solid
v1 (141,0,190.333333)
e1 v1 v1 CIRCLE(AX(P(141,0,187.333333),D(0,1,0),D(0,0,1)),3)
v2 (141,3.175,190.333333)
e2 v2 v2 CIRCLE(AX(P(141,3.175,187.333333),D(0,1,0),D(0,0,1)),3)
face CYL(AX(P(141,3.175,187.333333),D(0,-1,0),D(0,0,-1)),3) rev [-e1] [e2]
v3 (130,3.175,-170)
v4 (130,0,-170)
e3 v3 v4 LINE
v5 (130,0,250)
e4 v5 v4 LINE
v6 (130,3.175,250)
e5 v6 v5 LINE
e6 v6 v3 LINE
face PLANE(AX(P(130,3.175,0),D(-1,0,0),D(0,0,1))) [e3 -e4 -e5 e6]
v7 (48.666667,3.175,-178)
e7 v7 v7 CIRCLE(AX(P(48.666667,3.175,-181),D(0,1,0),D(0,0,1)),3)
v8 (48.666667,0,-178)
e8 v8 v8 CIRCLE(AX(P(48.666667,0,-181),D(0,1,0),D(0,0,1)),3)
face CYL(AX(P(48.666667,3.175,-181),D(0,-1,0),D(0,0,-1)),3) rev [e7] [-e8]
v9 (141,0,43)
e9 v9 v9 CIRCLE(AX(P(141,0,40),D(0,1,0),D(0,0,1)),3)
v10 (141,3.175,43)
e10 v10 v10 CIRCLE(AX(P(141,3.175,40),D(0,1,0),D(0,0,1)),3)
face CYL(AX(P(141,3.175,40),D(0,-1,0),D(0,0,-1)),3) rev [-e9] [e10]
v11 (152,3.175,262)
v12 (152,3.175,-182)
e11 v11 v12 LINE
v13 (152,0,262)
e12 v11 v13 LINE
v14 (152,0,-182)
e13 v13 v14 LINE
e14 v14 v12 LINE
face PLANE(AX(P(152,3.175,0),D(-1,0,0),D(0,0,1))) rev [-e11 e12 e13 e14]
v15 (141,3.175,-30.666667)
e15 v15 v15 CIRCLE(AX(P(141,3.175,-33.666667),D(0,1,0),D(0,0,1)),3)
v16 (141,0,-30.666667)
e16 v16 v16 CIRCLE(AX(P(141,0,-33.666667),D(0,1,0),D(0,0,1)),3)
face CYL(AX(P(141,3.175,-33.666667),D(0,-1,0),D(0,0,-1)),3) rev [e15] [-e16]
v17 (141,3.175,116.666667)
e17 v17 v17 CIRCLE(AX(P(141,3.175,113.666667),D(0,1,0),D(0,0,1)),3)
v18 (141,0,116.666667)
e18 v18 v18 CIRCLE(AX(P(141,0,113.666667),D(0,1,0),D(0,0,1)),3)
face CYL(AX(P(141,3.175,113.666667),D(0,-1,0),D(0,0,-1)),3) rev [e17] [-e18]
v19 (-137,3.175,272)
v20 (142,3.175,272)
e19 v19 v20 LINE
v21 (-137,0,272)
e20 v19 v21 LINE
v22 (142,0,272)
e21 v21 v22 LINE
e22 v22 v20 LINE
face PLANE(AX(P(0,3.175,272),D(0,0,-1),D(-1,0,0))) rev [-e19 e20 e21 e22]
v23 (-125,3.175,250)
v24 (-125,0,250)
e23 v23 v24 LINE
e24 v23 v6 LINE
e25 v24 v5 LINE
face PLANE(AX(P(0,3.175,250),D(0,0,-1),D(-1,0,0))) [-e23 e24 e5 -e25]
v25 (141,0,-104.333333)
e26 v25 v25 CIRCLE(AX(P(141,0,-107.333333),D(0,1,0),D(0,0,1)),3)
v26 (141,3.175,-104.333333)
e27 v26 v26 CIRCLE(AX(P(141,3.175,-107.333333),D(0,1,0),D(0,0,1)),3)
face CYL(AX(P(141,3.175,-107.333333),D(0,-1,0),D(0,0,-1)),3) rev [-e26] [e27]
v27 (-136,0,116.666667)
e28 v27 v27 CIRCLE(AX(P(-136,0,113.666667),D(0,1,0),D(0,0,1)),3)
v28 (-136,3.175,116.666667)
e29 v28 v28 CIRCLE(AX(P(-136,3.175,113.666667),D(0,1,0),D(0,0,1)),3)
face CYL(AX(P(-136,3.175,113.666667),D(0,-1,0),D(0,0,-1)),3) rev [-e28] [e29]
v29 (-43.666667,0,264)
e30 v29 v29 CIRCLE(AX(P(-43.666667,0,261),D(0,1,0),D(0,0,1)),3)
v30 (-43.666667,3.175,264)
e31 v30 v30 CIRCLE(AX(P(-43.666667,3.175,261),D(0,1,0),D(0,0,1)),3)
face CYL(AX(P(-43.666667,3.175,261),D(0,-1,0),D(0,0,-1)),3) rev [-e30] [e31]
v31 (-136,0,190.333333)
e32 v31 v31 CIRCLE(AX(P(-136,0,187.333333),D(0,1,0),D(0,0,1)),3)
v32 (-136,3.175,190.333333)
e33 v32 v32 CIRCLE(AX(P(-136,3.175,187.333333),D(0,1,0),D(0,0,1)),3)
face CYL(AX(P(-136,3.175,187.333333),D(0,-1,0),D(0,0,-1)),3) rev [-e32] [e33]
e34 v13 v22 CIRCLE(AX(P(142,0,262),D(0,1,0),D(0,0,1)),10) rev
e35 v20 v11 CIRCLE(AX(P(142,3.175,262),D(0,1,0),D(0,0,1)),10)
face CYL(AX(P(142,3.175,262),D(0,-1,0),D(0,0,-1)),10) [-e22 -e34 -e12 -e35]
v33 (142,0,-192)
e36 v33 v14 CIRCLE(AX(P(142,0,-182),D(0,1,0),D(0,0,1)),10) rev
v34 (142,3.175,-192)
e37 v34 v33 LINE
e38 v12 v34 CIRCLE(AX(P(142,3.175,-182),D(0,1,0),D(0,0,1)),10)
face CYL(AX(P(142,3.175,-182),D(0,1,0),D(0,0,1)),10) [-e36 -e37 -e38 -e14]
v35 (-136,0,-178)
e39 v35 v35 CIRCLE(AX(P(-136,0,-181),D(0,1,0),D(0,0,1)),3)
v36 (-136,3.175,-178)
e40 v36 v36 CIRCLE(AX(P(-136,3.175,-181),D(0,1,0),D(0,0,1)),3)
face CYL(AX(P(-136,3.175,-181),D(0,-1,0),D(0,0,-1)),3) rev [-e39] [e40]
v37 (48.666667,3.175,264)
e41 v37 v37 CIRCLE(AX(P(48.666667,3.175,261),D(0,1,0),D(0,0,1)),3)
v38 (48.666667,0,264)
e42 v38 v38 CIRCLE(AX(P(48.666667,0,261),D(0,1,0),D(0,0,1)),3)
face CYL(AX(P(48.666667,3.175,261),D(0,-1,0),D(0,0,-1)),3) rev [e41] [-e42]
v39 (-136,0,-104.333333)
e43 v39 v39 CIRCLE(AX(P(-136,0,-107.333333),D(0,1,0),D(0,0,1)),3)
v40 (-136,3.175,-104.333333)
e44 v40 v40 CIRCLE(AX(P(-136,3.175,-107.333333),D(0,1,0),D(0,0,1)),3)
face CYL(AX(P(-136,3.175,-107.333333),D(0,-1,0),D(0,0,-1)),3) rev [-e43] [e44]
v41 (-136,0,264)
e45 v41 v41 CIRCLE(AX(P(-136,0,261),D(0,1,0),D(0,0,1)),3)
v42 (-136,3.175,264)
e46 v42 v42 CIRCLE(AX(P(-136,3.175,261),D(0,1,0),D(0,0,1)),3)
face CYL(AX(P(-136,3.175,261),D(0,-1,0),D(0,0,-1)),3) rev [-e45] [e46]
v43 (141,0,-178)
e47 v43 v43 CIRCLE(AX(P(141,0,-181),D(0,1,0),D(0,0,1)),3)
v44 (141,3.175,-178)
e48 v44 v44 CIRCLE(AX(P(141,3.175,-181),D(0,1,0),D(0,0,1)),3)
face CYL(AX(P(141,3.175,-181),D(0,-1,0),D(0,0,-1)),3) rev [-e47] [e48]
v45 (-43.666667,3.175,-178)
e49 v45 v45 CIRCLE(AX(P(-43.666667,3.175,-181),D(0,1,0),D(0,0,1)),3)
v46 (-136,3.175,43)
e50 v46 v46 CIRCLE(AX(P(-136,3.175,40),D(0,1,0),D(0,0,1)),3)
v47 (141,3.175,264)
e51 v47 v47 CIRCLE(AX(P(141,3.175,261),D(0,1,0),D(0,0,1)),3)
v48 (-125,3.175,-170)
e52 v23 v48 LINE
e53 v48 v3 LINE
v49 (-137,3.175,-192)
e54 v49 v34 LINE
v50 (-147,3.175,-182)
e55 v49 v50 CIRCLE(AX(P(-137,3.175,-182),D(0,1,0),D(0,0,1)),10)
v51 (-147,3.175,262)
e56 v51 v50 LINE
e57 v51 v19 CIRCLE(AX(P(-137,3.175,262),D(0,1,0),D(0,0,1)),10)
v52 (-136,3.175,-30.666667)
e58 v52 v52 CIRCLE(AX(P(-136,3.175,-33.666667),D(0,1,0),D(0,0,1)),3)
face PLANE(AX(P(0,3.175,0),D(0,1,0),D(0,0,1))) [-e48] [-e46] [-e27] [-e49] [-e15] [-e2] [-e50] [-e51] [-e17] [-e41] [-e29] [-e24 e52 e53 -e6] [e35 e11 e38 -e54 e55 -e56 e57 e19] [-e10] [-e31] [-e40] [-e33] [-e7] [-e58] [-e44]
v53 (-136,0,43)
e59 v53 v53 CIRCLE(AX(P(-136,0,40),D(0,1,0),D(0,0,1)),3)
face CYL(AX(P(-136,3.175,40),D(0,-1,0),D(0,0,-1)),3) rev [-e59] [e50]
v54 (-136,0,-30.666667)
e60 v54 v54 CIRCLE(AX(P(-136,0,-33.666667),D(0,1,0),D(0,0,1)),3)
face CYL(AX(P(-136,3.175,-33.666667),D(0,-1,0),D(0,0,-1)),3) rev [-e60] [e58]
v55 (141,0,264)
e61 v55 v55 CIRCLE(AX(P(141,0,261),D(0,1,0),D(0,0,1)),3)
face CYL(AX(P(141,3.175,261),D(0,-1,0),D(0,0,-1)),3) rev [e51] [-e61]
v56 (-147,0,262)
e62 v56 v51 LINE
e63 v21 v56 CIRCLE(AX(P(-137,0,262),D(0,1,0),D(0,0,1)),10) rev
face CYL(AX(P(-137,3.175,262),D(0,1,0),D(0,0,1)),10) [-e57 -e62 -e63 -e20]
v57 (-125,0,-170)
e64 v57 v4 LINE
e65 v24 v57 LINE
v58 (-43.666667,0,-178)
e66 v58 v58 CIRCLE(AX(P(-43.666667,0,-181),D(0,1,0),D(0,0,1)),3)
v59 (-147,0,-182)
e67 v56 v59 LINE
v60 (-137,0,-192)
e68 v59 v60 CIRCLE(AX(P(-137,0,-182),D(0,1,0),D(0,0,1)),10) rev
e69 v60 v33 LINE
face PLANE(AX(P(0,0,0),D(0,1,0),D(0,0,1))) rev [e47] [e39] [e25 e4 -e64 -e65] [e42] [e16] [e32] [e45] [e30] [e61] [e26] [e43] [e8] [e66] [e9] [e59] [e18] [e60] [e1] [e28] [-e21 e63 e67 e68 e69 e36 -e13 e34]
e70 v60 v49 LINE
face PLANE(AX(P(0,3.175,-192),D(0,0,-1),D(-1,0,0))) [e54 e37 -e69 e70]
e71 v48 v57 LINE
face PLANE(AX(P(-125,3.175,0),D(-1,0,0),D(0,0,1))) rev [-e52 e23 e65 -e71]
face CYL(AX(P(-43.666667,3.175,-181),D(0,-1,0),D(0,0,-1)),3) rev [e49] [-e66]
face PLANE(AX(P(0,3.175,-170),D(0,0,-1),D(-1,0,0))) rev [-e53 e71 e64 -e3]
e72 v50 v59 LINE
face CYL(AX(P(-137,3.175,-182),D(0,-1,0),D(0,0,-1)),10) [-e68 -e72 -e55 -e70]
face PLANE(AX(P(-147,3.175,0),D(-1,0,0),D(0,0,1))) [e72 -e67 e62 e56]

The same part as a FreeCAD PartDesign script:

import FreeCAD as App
import Part
import Sketcher

V = App.Vector


def edges_at(feature, points):
    """Names of the edges that pass closest to the given points."""
    edges = feature.Shape.Edges
    near = lambda p: min(range(len(edges)), key=lambda i: edges[i].distToShape(Part.Vertex(*p))[0])
    return sorted({f"Edge{near(p) + 1}" for p in points})

doc = App.newDocument("Part")
body = doc.addObject("PartDesign::Body", "Body")

# Sketch on XZ plane
sketch1 = body.newObject("Sketcher::SketchObject", "Sketch")
sketch1.AttachmentSupport = (doc.getObject("XZ_Plane"), [""])
sketch1.MapMode = "FlatFace"
sketch1.addGeometry(Part.LineSegment(V(-147, -192, 0), V(-147, 272, 0)), False)
sketch1.addGeometry(Part.LineSegment(V(-147, 272, 0), V(152, 272, 0)), False)
sketch1.addGeometry(Part.LineSegment(V(152, 272, 0), V(152, -192, 0)), False)
sketch1.addGeometry(Part.LineSegment(V(152, -192, 0), V(-147, -192, 0)), False)
sketch1.addGeometry(Part.Circle(V(-136, 261, 0), V(0, 0, 1), 3), False)
sketch1.addGeometry(Part.Circle(V(-136, 187.333333, 0), V(0, 0, 1), 3), False)
sketch1.addGeometry(Part.Circle(V(-43.666667, 261, 0), V(0, 0, 1), 3), False)
sketch1.addGeometry(Part.Circle(V(-136, 113.666667, 0), V(0, 0, 1), 3), False)
sketch1.addGeometry(Part.Circle(V(48.666667, 261, 0), V(0, 0, 1), 3), False)
sketch1.addGeometry(Part.Circle(V(141, 261, 0), V(0, 0, 1), 3), False)
sketch1.addGeometry(Part.Circle(V(141, 187.333333, 0), V(0, 0, 1), 3), False)
sketch1.addGeometry(Part.Circle(V(141, 113.666667, 0), V(0, 0, 1), 3), False)
sketch1.addGeometry(Part.Circle(V(-136, 40, 0), V(0, 0, 1), 3), False)
sketch1.addGeometry(Part.Circle(V(-136, -33.666667, 0), V(0, 0, 1), 3), False)
sketch1.addGeometry(Part.Circle(V(-136, -107.333333, 0), V(0, 0, 1), 3), False)
sketch1.addGeometry(Part.Circle(V(-136, -181, 0), V(0, 0, 1), 3), False)
sketch1.addGeometry(Part.Circle(V(-43.666667, -181, 0), V(0, 0, 1), 3), False)
sketch1.addGeometry(Part.LineSegment(V(130, 250, 0), V(-125, 250, 0)), False)
sketch1.addGeometry(Part.LineSegment(V(-125, 250, 0), V(-125, -170, 0)), False)
sketch1.addGeometry(Part.LineSegment(V(-125, -170, 0), V(130, -170, 0)), False)
sketch1.addGeometry(Part.LineSegment(V(130, -170, 0), V(130, 250, 0)), False)
sketch1.addGeometry(Part.Circle(V(141, 40, 0), V(0, 0, 1), 3), False)
sketch1.addGeometry(Part.Circle(V(141, -33.666667, 0), V(0, 0, 1), 3), False)
sketch1.addGeometry(Part.Circle(V(48.666667, -181, 0), V(0, 0, 1), 3), False)
sketch1.addGeometry(Part.Circle(V(141, -107.333333, 0), V(0, 0, 1), 3), False)
sketch1.addGeometry(Part.Circle(V(141, -181, 0), V(0, 0, 1), 3), False)
sketch1.addConstraint(Sketcher.Constraint("Coincident", 0, 2, 1, 1))
sketch1.addConstraint(Sketcher.Constraint("Coincident", 1, 2, 2, 1))
sketch1.addConstraint(Sketcher.Constraint("Coincident", 2, 2, 3, 1))
sketch1.addConstraint(Sketcher.Constraint("Coincident", 3, 2, 0, 1))
sketch1.addConstraint(Sketcher.Constraint("Coincident", 17, 2, 18, 1))
sketch1.addConstraint(Sketcher.Constraint("Coincident", 18, 2, 19, 1))
sketch1.addConstraint(Sketcher.Constraint("Coincident", 19, 2, 20, 1))
sketch1.addConstraint(Sketcher.Constraint("Coincident", 20, 2, 17, 1))
sketch1.addConstraint(Sketcher.Constraint("Vertical", 0))
sketch1.addConstraint(Sketcher.Constraint("Horizontal", 1))
sketch1.addConstraint(Sketcher.Constraint("Vertical", 2))
sketch1.addConstraint(Sketcher.Constraint("Horizontal", 3))
sketch1.addConstraint(Sketcher.Constraint("Horizontal", 17))
sketch1.addConstraint(Sketcher.Constraint("Vertical", 18))
sketch1.addConstraint(Sketcher.Constraint("Horizontal", 19))
sketch1.addConstraint(Sketcher.Constraint("Vertical", 20))
sketch1.addConstraint(Sketcher.Constraint("Equal", 4, 5))
sketch1.addConstraint(Sketcher.Constraint("Equal", 5, 6))
sketch1.addConstraint(Sketcher.Constraint("Equal", 6, 7))
sketch1.addConstraint(Sketcher.Constraint("Equal", 7, 8))
sketch1.addConstraint(Sketcher.Constraint("Equal", 8, 9))
sketch1.addConstraint(Sketcher.Constraint("Equal", 9, 10))
sketch1.addConstraint(Sketcher.Constraint("Equal", 10, 11))
sketch1.addConstraint(Sketcher.Constraint("Equal", 11, 12))
sketch1.addConstraint(Sketcher.Constraint("Equal", 12, 13))
sketch1.addConstraint(Sketcher.Constraint("Equal", 13, 14))
sketch1.addConstraint(Sketcher.Constraint("Equal", 14, 15))
sketch1.addConstraint(Sketcher.Constraint("Equal", 15, 16))
sketch1.addConstraint(Sketcher.Constraint("Equal", 16, 21))
sketch1.addConstraint(Sketcher.Constraint("Equal", 21, 22))
sketch1.addConstraint(Sketcher.Constraint("Equal", 22, 23))
sketch1.addConstraint(Sketcher.Constraint("Equal", 23, 24))
sketch1.addConstraint(Sketcher.Constraint("Equal", 24, 25))
sketch1.addConstraint(Sketcher.Constraint("Horizontal", 4, 3, 6, 3))
sketch1.addConstraint(Sketcher.Constraint("Horizontal", 6, 3, 8, 3))
sketch1.addConstraint(Sketcher.Constraint("Horizontal", 8, 3, 9, 3))
sketch1.addConstraint(Sketcher.Constraint("Horizontal", 5, 3, 10, 3))
sketch1.addConstraint(Sketcher.Constraint("Horizontal", 7, 3, 11, 3))
sketch1.addConstraint(Sketcher.Constraint("Horizontal", 15, 3, 16, 3))
sketch1.addConstraint(Sketcher.Constraint("Horizontal", 12, 3, 21, 3))
sketch1.addConstraint(Sketcher.Constraint("Horizontal", 13, 3, 22, 3))
sketch1.addConstraint(Sketcher.Constraint("Horizontal", 16, 3, 23, 3))
sketch1.addConstraint(Sketcher.Constraint("Horizontal", 14, 3, 24, 3))
sketch1.addConstraint(Sketcher.Constraint("Horizontal", 23, 3, 25, 3))
sketch1.addConstraint(Sketcher.Constraint("Vertical", 4, 3, 5, 3))
sketch1.addConstraint(Sketcher.Constraint("Vertical", 5, 3, 7, 3))
sketch1.addConstraint(Sketcher.Constraint("Vertical", 9, 3, 10, 3))
sketch1.addConstraint(Sketcher.Constraint("Vertical", 10, 3, 11, 3))
sketch1.addConstraint(Sketcher.Constraint("Vertical", 7, 3, 12, 3))
sketch1.addConstraint(Sketcher.Constraint("Vertical", 12, 3, 13, 3))
sketch1.addConstraint(Sketcher.Constraint("Vertical", 13, 3, 14, 3))
sketch1.addConstraint(Sketcher.Constraint("Vertical", 14, 3, 15, 3))
sketch1.addConstraint(Sketcher.Constraint("Vertical", 6, 3, 16, 3))
sketch1.addConstraint(Sketcher.Constraint("Vertical", 11, 3, 21, 3))
sketch1.addConstraint(Sketcher.Constraint("Vertical", 21, 3, 22, 3))
sketch1.addConstraint(Sketcher.Constraint("Vertical", 8, 3, 23, 3))
sketch1.addConstraint(Sketcher.Constraint("Vertical", 22, 3, 24, 3))
sketch1.addConstraint(Sketcher.Constraint("Vertical", 24, 3, 25, 3))
sketch1.addConstraint(Sketcher.Constraint("Diameter", 4, 6.0))
sketch1.addConstraint(Sketcher.Constraint("DistanceX", 1, 1, 1, 2, 299.0))
sketch1.addConstraint(Sketcher.Constraint("DistanceX", 17, 2, 17, 1, 255.0))
sketch1.addConstraint(Sketcher.Constraint("DistanceY", 0, 1, 0, 2, 464.0))
sketch1.addConstraint(Sketcher.Constraint("DistanceY", 18, 2, 18, 1, 420.0))
sketch1.addConstraint(Sketcher.Constraint("DistanceX", 4, 3, -1, 1, 136.0))
sketch1.addConstraint(Sketcher.Constraint("DistanceY", -1, 1, 4, 3, 261.0))
sketch1.addConstraint(Sketcher.Constraint("DistanceX", -1, 1, 9, 3, 141.0))
sketch1.addConstraint(Sketcher.Constraint("DistanceY", -1, 1, 12, 3, 40.0))
sketch1.addConstraint(Sketcher.Constraint("DistanceY", 15, 3, -1, 1, 181.0))
sketch1.addConstraint(Sketcher.Constraint("DistanceX", 0, 2, -1, 1, 147.0))
sketch1.addConstraint(Sketcher.Constraint("DistanceY", -1, 1, 0, 2, 272.0))
sketch1.addConstraint(Sketcher.Constraint("DistanceX", 17, 2, -1, 1, 125.0))
sketch1.addConstraint(Sketcher.Constraint("DistanceY", -1, 1, 17, 2, 250.0))
sketch1.addConstraint(Sketcher.Constraint("DistanceY", 13, 3, 5, 3, 221.0))
sketch1.addConstraint(Sketcher.Constraint("DistanceY", 14, 3, 7, 3, 221.0))
sketch1.addConstraint(Sketcher.Constraint("DistanceY", -1, 1, 5, 3, 187.333333))
sketch1.addConstraint(Sketcher.Constraint("DistanceX", 6, 3, -1, 1, 43.666667))
sketch1.addConstraint(Sketcher.Constraint("DistanceY", -1, 1, 7, 3, 113.666667))
sketch1.addConstraint(Sketcher.Constraint("DistanceX", -1, 1, 8, 3, 48.666667))
pad1 = body.newObject("PartDesign::Pad", "Pad")
pad1.Profile = sketch1
pad1.Length = 3.175
pad1.Reversed = True
doc.recompute()

fillet = body.newObject("PartDesign::Fillet", "Fillet")
fillet.Base = (pad1, edges_at(pad1, [
    (-147, 1.587, -192),
    (152, 1.587, -192),
    (152, 1.587, 272),
    (-147, 1.587, 272),
]))
fillet.Radius = 10

doc.recompute()
